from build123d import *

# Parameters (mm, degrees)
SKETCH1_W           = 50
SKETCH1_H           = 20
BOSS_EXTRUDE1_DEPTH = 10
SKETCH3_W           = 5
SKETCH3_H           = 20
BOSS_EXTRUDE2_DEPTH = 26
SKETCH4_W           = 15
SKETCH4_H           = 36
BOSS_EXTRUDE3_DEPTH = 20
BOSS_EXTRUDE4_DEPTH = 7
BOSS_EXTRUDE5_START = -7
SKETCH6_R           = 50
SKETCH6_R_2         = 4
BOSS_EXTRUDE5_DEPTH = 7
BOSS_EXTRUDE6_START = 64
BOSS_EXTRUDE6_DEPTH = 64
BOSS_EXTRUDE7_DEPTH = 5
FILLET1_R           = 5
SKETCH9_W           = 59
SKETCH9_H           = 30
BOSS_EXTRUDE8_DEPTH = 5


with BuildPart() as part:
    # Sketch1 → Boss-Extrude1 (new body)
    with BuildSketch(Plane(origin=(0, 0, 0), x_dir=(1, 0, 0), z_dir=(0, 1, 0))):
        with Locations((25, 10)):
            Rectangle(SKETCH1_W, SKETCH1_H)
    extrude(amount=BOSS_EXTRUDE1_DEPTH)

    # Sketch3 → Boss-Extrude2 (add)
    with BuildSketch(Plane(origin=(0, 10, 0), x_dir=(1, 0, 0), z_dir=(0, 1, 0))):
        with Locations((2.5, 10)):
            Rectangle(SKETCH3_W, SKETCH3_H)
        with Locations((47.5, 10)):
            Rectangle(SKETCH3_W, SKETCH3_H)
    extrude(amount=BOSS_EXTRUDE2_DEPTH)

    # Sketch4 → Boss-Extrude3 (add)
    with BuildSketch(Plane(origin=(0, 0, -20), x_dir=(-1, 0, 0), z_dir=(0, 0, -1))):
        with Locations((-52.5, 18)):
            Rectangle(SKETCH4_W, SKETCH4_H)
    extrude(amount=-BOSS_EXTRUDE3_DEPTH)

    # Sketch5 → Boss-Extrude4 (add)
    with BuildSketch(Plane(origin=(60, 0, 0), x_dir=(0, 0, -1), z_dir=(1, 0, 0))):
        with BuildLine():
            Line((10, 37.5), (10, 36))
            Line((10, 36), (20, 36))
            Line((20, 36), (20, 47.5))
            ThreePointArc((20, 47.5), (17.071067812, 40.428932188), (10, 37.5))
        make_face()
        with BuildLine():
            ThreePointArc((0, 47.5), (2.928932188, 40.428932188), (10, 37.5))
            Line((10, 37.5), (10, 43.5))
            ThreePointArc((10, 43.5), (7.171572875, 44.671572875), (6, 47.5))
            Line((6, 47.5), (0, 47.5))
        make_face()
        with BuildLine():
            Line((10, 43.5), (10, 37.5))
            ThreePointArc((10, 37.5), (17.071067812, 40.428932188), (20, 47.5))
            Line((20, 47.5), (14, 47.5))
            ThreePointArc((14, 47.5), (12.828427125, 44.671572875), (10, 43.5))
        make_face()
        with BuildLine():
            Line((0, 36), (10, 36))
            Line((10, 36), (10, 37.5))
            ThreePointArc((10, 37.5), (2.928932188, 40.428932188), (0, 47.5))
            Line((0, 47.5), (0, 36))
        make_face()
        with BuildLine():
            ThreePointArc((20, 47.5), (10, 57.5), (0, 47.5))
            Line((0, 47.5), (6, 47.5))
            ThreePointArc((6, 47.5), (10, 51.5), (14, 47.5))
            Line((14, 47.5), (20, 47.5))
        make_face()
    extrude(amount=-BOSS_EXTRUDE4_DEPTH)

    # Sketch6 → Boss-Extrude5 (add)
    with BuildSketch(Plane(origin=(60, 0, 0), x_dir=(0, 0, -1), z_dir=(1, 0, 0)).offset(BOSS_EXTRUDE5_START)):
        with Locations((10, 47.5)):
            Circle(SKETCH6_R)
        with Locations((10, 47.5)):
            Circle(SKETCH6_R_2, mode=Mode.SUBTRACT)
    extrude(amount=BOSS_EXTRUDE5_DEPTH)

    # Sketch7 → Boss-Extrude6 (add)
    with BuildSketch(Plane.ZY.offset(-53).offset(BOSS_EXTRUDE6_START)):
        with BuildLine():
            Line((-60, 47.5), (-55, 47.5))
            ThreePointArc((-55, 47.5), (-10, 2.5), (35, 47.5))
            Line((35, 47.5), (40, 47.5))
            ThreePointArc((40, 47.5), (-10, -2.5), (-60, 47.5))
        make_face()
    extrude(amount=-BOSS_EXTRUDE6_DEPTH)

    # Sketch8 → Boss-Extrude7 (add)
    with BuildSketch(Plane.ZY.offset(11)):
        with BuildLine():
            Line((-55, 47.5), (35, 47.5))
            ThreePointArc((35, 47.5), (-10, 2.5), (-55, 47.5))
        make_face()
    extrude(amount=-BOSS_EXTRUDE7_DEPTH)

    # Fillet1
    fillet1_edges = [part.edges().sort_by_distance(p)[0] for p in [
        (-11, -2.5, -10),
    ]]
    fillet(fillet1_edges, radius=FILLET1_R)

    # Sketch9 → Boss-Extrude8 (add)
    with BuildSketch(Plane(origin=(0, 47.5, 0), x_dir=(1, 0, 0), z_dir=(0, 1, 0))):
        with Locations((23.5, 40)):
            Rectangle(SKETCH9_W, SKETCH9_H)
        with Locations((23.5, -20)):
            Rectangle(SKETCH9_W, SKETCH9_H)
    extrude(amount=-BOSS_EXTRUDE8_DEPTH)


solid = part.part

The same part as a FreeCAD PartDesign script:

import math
import FreeCAD as App
import Part
import Sketcher

V = App.Vector
Q = App.Units.Quantity


def edges_at(feature, points):
    """Names of the edges that pass closest to the given points."""
    edges = feature.Shape.Edges
    near = lambda p: min(range(len(edges)), key=lambda i: edges[i].distToShape(Part.Vertex(*p))[0])
    return sorted({f"Edge{near(p) + 1}" for p in points})


def add_polygon(sketch, points):
    """Adds a closed chain of lines whose ends are joined by coincident constraints."""
    first, n = sketch.GeometryCount, len(points)
    for a, b in zip(points, points[1:] + points[:1]):
        sketch.addGeometry(Part.LineSegment(App.Vector(*a, 0), App.Vector(*b, 0)), False)
    for i in range(n):
        sketch.addConstraint(Sketcher.Constraint("Coincident", first + i, 2, first + (i + 1) % n, 1))

doc = App.newDocument("Part")
body = doc.addObject("PartDesign::Body", "Body")

sketch1 = body.newObject("Sketcher::SketchObject", "Sketch")
sketch1.AttachmentSupport = (doc.getObject("XZ_Plane"), [""])
sketch1.MapMode = "FlatFace"
add_polygon(sketch1, [(0, -20), (0, 0), (50, 0), (50, -20)])
sketch1.addConstraint([
    Sketcher.Constraint("Vertical", 0),
    Sketcher.Constraint("Horizontal", 1),
    Sketcher.Constraint("Vertical", 2),
    Sketcher.Constraint("Horizontal", 3),
    Sketcher.Constraint("Coincident", 0, 2, -1, 1),
    Sketcher.Constraint("DistanceX", 1, 1, 1, 2, Q("50 mm")),
    Sketcher.Constraint("DistanceY", 0, 1, 0, 2, Q("20 mm")),
])
pad1 = body.newObject("PartDesign::Pad", "Pad")
pad1.Profile = sketch1
pad1.Length = 10
pad1.Reversed = True

sketch2 = body.newObject("Sketcher::SketchObject", "Sketch001")
sketch2.AttachmentSupport = (doc.getObject("XZ_Plane"), [""])
sketch2.MapMode = "FlatFace"
sketch2.AttachmentOffset = App.Placement(V(0, 0, -10), App.Rotation())
add_polygon(sketch2, [(0, -20), (0, 0), (5, 0), (5, -20)])
add_polygon(sketch2, [(45, -20), (45, 0), (50, 0), (50, -20)])
sketch2.addConstraint([
    Sketcher.Constraint("Vertical", 0),
    Sketcher.Constraint("Horizontal", 1),
    Sketcher.Constraint("Vertical", 2),
    Sketcher.Constraint("Horizontal", 3),
    Sketcher.Constraint("Vertical", 4),
    Sketcher.Constraint("Horizontal", 5),
    Sketcher.Constraint("Vertical", 6),
    Sketcher.Constraint("Horizontal", 7),
    Sketcher.Constraint("Coincident", 0, 2, -1, 1),
    Sketcher.Constraint("PointOnObject", 4, 2, -1),
    Sketcher.Constraint("Horizontal", 3, 2, 6, 2),
    Sketcher.Constraint("Equal", 3, 5),
    Sketcher.Constraint("DistanceX", 1, 1, 1, 2, Q("5 mm")),
    Sketcher.Constraint("DistanceY", 0, 1, 0, 2, Q("20 mm")),
    Sketcher.Constraint("DistanceX", -1, 1, 4, 2, Q("45 mm")),
])
pad2 = body.newObject("PartDesign::Pad", "Pad001")
pad2.Profile = sketch2
pad2.Length = 26
pad2.Reversed = True

sketch3 = body.newObject("Sketcher::SketchObject", "Sketch002")
sketch3.AttachmentSupport = (doc.getObject("XY_Plane"), [""])
sketch3.MapMode = "FlatFace"
sketch3.AttachmentOffset = App.Placement(V(0, 0, -20), App.Rotation())
add_polygon(sketch3, [(60, 36), (60, 0), (45, 0), (45, 36)])
sketch3.addConstraint([
    Sketcher.Constraint("Vertical", 0),
    Sketcher.Constraint("Horizontal", 1),
    Sketcher.Constraint("Vertical", 2),
    Sketcher.Constraint("Horizontal", 3),
    Sketcher.Constraint("PointOnObject", 0, 2, -1),
    Sketcher.Constraint("DistanceX", 1, 2, 1, 1, Q("15 mm")),
    Sketcher.Constraint("DistanceY", 0, 2, 0, 1, Q("36 mm")),
    Sketcher.Constraint("DistanceX", -1, 1, 0, 2, Q("60 mm")),
])
pad3 = body.newObject("PartDesign::Pad", "Pad002")
pad3.Profile = sketch3
pad3.Length = 20

sketch4 = body.newObject("Sketcher::SketchObject", "Sketch003")
sketch4.AttachmentSupport = (doc.getObject("YZ_Plane"), [""])
sketch4.MapMode = "FlatFace"
sketch4.AttachmentOffset = App.Placement(V(0, 0, 60), App.Rotation())
sketch4.addGeometry([
    Part.LineSegment(V(47.5, 0, 0), V(36, 0, 0)),
    Part.LineSegment(V(36, 0, 0), V(36, -20, 0)),
    Part.LineSegment(V(36, -20, 0), V(47.5, -20, 0)),
    Part.ArcOfCircle(Part.Circle(V(47.5, -10, 0), V(0, 0, 1), 10), math.radians(-90), math.radians(90)),
    Part.ArcOfCircle(Part.Circle(V(47.5, -10, 0), V(0, 0, 1), 4), math.radians(180), math.radians(270)),
    Part.ArcOfCircle(Part.Circle(V(47.5, -10, 0), V(0, 0, 1), 4), math.radians(90), math.radians(180)),
    Part.ArcOfCircle(Part.Circle(V(47.5, -10, 0), V(0, 0, 1), 4), math.radians(-90), math.radians(90)),
], False)
sketch4.addConstraint([
    Sketcher.Constraint("Coincident", 0, 2, 1, 1),
    Sketcher.Constraint("Coincident", 1, 2, 2, 1),
    Sketcher.Constraint("Tangent", 2, 2, 3, 1),
    Sketcher.Constraint("Tangent", 3, 2, 0, 1),
    Sketcher.Constraint("Tangent", 4, 1, 5, 2),
    Sketcher.Constraint("Tangent", 5, 1, 6, 2),
    Sketcher.Constraint("Tangent", 6, 1, 4, 2),
    Sketcher.Constraint("Horizontal", 0),
    Sketcher.Constraint("Vertical", 1),
    Sketcher.Constraint("Horizontal", 2),
    Sketcher.Constraint("Coincident", 4, 3, 3, 3),
    Sketcher.Constraint("PointOnObject", 0, 2, -1),
    Sketcher.Constraint("Horizontal", 6, 3, 4, 1),
    Sketcher.Constraint("Vertical", 3, 2, 5, 1),
    Sketcher.Constraint("Vertical", 5, 1, 6, 1),
    Sketcher.Constraint("Radius", 3, Q("10 mm")),
    Sketcher.Constraint("Radius", 4, Q("4 mm")),
    Sketcher.Constraint("DistanceX", 0, 2, 0, 1, Q("11.5 mm")),
    Sketcher.Constraint("DistanceX", -1, 1, 0, 2, Q("36 mm")),
])
pad4 = body.newObject("PartDesign::Pad", "Pad003")
pad4.Profile = sketch4
pad4.Length = 7
pad4.Reversed = True

sketch5 = body.newObject("Sketcher::SketchObject", "Sketch004")
sketch5.AttachmentSupport = (doc.getObject("YZ_Plane"), [""])
sketch5.MapMode = "FlatFace"
sketch5.AttachmentOffset = App.Placement(V(0, 0, 53), App.Rotation())
sketch5.addGeometry([
    Part.Circle(V(47.5, -10, 0), V(0, 0, 1), 50),
    Part.Circle(V(47.5, -10, 0), V(0, 0, 1), 4),
], False)
sketch5.addConstraint([
    Sketcher.Constraint("Coincident", 1, 3, 0, 3),
    Sketcher.Constraint("Diameter", 0, Q("100 mm")),
    Sketcher.Constraint("Diameter", 1, Q("8 mm")),
    Sketcher.Constraint("DistanceY", 0, 3, -1, 1, Q("10 mm")),
    Sketcher.Constraint("DistanceX", -1, 1, 0, 3, Q("47.5 mm")),
])
pad5 = body.newObject("PartDesign::Pad", "Pad004")
pad5.Profile = sketch5
pad5.Length = 7

sketch6 = body.newObject("Sketcher::SketchObject", "Sketch005")
sketch6.AttachmentSupport = (doc.getObject("YZ_Plane"), [""])
sketch6.MapMode = "FlatFace"
sketch6.AttachmentOffset = App.Placement(V(0, 0, -11), App.Rotation())
sketch6.addGeometry([
    Part.LineSegment(V(47.5, -55, 0), V(47.5, -60, 0)),
    Part.ArcOfCircle(Part.Circle(V(47.5, -10, 0), V(0, 0, 1), 50), math.radians(90), math.radians(270)),
    Part.LineSegment(V(47.5, 40, 0), V(47.5, 35, 0)),
    Part.ArcOfCircle(Part.Circle(V(47.5, -10, 0), V(0, 0, 1), 45), math.radians(90), math.radians(270)),
], False)
sketch6.addConstraint([
    Sketcher.Constraint("Coincident", 0, 2, 1, 2),
    Sketcher.Constraint("Coincident", 1, 1, 2, 1),
    Sketcher.Constraint("Coincident", 2, 2, 3, 1),
    Sketcher.Constraint("Coincident", 3, 2, 0, 1),
    Sketcher.Constraint("Vertical", 0),
    Sketcher.Constraint("Vertical", 2),
    Sketcher.Constraint("Coincident", 3, 3, 1, 3),
    Sketcher.Constraint("Vertical", 3, 3, 0, 2),
    Sketcher.Constraint("Vertical", 0, 2, 1, 1),
    Sketcher.Constraint("Radius", 1, Q("50 mm")),
    Sketcher.Constraint("Radius", 3, Q("45 mm")),
    Sketcher.Constraint("DistanceY", 1, 3, -1, 1, Q("10 mm")),
    Sketcher.Constraint("DistanceX", -1, 1, 1, 3, Q("47.5 mm")),
])
pad6 = body.newObject("PartDesign::Pad", "Pad005")
pad6.Profile = sketch6
pad6.Length = 64

sketch7 = body.newObject("Sketcher::SketchObject", "Sketch006")
sketch7.AttachmentSupport = (doc.getObject("YZ_Plane"), [""])
sketch7.MapMode = "FlatFace"
sketch7.AttachmentOffset = App.Placement(V(0, 0, -11), App.Rotation())
sketch7.addGeometry([
    Part.LineSegment(V(47.5, 35, 0), V(47.5, -55, 0)),
    Part.ArcOfCircle(Part.Circle(V(47.5, -10, 0), V(0, 0, 1), 45), math.radians(90), math.radians(270)),
], False)
sketch7.addConstraint([
    Sketcher.Constraint("Coincident", 0, 1, 1, 1),
    Sketcher.Constraint("Coincident", 1, 2, 0, 2),
    Sketcher.Constraint("Vertical", 0),
    Sketcher.Constraint("Vertical", 1, 3, 0, 1),
    Sketcher.Constraint("Radius", 1, Q("45 mm")),
    Sketcher.Constraint("DistanceY", 1, 3, -1, 1, Q("10 mm")),
    Sketcher.Constraint("DistanceX", -1, 1, 1, 3, Q("47.5 mm")),
])
pad7 = body.newObject("PartDesign::Pad", "Pad006")
pad7.Profile = sketch7
pad7.Length = 5
doc.recompute()

fillet = body.newObject("PartDesign::Fillet", "Fillet")
fillet.Base = (pad7, edges_at(pad7, [(-11, -2.5, -10)]))
fillet.Radius = 5

sketch8 = body.newObject("Sketcher::SketchObject", "Sketch007")
sketch8.AttachmentSupport = (doc.getObject("XZ_Plane"), [""])
sketch8.MapMode = "FlatFace"
sketch8.AttachmentOffset = App.Placement(V(0, 0, -47.5), App.Rotation())
add_polygon(sketch8, [(-6, -55), (-6, -25), (53, -25), (53, -55)])
add_polygon(sketch8, [(-6, 5), (-6, 35), (53, 35), (53, 5)])
sketch8.addConstraint([
    Sketcher.Constraint("Vertical", 0),
    Sketcher.Constraint("Horizontal", 1),
    Sketcher.Constraint("Vertical", 2),
    Sketcher.Constraint("Horizontal", 3),
    Sketcher.Constraint("Vertical", 4),
    Sketcher.Constraint("Horizontal", 5),
    Sketcher.Constraint("Vertical", 6),
    Sketcher.Constraint("Horizontal", 7),
    Sketcher.Constraint("Vertical", 3, 2, 4, 2),
    Sketcher.Constraint("Vertical", 2, 2, 5, 2),
    Sketcher.Constraint("Equal", 2, 4),
    Sketcher.Constraint("DistanceX", 1, 1, 1, 2, Q("59 mm")),
    Sketcher.Constraint("DistanceY", 0, 1, 0, 2, Q("30 mm")),
    Sketcher.Constraint("DistanceX", 0, 2, -1, 1, Q("6 mm")),
    Sketcher.Constraint("DistanceY", 0, 2, -1, 1, Q("25 mm")),
    Sketcher.Constraint("DistanceY", -1, 1, 4, 2, Q("35 mm")),
])
pad8 = body.newObject("PartDesign::Pad", "Pad007")
pad8.Profile = sketch8
pad8.Length = 5

doc.recompute()
